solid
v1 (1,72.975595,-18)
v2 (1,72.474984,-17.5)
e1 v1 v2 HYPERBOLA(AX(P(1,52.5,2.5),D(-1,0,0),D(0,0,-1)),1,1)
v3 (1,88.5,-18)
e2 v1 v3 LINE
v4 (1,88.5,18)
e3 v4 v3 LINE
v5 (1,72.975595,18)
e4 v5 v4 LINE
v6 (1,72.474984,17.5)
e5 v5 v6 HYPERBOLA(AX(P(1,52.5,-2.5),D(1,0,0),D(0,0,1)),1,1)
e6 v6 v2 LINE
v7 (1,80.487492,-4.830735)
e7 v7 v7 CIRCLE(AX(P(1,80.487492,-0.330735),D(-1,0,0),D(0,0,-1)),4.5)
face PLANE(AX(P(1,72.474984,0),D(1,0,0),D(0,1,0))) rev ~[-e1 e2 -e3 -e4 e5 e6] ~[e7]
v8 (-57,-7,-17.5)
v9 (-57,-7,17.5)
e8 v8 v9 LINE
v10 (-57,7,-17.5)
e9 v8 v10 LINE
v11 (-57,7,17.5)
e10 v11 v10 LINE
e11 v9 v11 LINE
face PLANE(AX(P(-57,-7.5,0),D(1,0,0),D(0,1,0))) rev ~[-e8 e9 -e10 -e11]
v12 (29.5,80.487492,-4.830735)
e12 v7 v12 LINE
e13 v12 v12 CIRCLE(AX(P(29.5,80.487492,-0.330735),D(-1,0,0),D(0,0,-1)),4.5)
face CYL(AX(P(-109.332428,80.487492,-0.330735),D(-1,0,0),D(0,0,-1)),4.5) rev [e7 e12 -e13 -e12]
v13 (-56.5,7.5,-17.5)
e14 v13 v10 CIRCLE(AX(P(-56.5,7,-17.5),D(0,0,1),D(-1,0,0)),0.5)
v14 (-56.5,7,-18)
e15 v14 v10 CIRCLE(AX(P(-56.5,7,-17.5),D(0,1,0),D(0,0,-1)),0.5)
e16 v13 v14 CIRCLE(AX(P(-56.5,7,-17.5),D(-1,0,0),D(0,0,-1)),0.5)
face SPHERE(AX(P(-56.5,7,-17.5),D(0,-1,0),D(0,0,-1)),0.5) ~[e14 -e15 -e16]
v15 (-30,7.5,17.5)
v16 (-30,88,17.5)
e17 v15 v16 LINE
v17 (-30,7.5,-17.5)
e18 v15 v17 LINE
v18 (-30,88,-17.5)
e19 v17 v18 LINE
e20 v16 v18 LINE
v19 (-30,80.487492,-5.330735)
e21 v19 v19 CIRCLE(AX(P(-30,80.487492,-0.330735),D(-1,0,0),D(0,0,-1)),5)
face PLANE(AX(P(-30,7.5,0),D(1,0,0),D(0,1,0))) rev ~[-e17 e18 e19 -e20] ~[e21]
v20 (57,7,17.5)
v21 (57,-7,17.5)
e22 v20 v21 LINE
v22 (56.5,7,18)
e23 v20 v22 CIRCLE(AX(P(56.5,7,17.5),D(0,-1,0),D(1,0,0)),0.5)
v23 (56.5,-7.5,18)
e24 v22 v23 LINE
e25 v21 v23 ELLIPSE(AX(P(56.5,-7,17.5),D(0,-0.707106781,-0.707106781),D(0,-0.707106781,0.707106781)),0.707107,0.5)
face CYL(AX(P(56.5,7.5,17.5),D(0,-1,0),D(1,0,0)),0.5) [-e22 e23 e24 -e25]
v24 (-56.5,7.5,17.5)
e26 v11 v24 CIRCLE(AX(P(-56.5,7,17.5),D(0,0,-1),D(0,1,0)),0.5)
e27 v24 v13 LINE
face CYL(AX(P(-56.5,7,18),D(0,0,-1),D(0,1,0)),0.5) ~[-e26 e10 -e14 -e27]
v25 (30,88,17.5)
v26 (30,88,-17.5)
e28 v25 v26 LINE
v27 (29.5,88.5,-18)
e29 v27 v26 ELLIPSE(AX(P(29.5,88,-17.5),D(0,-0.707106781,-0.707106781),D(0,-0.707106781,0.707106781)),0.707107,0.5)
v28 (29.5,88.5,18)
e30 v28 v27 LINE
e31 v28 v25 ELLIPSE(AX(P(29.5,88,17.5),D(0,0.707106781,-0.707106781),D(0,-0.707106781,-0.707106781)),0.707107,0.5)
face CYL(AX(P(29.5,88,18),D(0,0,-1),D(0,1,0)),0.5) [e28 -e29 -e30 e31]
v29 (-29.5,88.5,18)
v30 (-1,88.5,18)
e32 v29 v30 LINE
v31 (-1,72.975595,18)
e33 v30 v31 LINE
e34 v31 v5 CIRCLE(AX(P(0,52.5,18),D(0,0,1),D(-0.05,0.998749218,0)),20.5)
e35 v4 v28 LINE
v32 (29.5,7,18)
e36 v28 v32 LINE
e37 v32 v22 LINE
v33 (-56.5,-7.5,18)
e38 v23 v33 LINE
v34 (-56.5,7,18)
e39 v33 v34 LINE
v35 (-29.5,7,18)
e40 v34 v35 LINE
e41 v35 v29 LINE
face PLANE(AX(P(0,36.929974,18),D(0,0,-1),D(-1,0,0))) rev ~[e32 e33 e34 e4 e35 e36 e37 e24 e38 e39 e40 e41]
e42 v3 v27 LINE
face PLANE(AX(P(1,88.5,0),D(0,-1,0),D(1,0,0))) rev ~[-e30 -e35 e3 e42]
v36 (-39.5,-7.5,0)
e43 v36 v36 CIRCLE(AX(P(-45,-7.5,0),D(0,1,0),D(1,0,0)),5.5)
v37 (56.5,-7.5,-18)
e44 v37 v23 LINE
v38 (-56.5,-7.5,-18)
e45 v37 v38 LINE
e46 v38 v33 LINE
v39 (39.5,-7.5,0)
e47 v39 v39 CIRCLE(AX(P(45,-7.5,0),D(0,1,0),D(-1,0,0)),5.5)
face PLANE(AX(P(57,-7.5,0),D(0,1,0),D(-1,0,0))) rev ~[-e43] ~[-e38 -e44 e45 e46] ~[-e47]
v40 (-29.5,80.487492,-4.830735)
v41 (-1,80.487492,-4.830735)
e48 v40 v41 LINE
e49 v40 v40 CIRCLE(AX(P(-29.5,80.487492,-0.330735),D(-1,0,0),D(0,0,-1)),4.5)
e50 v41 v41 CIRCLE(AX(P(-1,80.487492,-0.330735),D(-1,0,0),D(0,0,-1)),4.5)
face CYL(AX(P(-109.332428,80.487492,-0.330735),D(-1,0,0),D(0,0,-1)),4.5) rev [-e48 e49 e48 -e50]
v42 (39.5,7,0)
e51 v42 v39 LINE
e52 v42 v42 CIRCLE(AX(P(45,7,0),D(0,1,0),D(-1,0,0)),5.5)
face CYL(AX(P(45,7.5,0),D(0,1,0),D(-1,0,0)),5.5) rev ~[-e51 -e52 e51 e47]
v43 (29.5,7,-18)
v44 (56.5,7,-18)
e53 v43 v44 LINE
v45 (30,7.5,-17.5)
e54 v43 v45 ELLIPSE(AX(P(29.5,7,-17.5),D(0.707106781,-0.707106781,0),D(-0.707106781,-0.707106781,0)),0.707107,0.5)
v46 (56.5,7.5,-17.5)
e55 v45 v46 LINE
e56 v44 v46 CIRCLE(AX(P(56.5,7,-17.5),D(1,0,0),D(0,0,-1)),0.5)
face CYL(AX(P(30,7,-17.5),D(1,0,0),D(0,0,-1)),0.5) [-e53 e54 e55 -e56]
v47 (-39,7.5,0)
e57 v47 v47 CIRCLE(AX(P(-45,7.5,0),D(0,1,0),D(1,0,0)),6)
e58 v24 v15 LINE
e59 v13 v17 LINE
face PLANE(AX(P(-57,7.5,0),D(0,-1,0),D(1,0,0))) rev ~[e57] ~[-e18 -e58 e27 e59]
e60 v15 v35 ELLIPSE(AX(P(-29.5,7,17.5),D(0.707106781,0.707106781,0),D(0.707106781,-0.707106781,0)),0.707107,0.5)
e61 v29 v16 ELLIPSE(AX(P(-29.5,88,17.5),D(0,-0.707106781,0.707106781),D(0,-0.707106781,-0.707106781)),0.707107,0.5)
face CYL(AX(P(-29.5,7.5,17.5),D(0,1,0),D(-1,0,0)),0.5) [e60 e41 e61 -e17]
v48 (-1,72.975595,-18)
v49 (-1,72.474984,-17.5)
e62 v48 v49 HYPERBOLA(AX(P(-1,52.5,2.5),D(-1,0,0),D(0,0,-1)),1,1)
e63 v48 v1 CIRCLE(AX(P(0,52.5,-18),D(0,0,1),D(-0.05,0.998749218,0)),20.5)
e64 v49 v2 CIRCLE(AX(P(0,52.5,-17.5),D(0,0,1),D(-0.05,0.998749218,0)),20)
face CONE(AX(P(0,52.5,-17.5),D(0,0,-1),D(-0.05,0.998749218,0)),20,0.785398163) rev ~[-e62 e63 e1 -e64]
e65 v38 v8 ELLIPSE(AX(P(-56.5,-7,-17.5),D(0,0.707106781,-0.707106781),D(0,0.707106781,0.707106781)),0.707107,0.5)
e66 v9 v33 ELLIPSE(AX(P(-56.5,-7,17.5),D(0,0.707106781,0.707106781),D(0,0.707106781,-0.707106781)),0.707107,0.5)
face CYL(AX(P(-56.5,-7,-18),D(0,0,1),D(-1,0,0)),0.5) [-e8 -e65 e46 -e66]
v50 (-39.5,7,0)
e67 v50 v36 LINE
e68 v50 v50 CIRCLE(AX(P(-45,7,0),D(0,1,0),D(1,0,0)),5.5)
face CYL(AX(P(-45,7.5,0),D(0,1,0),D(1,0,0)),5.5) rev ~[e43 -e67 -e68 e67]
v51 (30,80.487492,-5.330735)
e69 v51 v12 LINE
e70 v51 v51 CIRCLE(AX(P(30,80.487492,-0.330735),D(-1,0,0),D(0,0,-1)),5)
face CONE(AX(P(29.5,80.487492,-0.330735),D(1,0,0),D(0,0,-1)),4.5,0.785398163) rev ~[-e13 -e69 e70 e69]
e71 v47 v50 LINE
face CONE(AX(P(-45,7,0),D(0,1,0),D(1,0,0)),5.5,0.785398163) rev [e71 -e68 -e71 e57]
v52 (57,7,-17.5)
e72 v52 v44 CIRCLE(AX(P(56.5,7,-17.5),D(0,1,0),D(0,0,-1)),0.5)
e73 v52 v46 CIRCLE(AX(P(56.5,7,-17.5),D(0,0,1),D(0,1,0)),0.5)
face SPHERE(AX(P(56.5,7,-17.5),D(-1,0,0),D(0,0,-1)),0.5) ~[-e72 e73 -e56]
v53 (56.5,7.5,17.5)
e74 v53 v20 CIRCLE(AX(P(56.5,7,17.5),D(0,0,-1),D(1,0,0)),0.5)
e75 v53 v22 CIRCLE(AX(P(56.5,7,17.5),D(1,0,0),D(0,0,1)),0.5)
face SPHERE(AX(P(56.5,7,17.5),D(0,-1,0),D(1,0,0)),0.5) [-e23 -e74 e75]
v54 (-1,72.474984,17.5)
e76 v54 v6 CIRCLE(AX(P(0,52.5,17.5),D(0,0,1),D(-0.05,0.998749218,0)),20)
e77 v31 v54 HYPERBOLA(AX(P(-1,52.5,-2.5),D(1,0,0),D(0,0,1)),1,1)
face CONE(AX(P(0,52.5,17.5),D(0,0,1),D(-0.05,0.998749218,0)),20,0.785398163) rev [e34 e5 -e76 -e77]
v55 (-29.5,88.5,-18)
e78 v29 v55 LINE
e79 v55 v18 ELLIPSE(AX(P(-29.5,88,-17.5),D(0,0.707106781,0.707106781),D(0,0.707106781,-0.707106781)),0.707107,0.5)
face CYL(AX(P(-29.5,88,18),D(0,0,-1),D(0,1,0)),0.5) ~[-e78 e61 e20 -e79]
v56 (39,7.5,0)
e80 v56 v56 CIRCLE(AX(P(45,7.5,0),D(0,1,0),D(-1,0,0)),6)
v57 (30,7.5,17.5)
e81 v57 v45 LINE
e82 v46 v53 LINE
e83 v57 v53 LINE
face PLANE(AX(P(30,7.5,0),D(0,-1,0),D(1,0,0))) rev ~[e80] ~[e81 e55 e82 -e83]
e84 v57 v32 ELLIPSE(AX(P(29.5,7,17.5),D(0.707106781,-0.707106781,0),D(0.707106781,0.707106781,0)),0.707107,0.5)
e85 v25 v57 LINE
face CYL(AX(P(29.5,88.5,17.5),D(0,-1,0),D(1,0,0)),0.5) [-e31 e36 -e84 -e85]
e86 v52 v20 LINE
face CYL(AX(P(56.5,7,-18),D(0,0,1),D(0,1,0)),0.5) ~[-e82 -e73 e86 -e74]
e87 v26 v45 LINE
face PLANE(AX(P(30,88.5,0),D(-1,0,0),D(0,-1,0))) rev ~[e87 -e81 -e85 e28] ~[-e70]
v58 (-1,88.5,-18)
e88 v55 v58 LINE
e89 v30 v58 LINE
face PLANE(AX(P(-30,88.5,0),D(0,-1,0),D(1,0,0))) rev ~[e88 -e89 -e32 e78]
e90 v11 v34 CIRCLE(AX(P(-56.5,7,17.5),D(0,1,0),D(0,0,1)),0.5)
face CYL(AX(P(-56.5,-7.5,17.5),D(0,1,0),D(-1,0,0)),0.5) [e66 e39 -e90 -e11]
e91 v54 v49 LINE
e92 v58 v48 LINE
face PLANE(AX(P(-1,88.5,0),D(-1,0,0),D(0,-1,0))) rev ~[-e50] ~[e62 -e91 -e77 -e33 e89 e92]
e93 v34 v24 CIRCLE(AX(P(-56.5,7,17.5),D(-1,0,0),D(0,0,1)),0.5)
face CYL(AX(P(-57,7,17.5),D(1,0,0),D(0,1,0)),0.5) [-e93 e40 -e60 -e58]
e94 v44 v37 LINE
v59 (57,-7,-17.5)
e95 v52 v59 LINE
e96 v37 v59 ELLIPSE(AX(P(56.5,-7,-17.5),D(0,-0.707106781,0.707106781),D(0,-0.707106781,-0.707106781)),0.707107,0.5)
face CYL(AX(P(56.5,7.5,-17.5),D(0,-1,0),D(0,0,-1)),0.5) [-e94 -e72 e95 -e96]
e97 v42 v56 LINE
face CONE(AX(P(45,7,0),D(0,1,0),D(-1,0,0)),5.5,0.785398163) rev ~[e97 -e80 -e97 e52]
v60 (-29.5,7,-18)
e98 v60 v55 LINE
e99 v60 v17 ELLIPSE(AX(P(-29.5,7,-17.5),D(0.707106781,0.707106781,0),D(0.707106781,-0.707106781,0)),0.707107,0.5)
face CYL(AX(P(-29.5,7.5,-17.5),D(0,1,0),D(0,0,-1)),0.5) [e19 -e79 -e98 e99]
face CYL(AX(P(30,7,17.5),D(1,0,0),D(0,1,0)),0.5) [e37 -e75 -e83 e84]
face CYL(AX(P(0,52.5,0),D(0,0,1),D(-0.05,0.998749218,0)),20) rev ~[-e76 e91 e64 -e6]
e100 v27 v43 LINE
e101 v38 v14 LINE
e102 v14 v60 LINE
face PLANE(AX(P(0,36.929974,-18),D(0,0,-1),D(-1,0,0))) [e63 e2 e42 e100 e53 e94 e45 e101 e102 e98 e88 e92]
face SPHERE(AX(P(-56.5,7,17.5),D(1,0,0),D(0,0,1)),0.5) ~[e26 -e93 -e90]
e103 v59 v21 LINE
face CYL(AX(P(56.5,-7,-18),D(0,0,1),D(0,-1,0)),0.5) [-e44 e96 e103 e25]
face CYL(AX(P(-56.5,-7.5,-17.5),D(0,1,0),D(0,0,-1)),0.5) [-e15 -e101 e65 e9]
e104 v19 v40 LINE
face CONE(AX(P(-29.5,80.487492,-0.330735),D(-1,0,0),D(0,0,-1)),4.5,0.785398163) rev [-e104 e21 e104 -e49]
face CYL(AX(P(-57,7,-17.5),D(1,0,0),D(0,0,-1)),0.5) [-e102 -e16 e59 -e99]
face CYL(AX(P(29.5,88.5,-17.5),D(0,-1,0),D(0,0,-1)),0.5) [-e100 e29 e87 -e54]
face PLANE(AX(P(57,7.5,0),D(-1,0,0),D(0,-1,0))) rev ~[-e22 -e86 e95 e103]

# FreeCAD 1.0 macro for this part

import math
import FreeCAD as App
import Part
import Sketcher

V = App.Vector


def edges_at(feature, points):
    """Names of the edges that pass closest to the given points."""
    edges = feature.Shape.Edges
    near = lambda p: min(range(len(edges)), key=lambda i: edges[i].distToShape(Part.Vertex(*p))[0])
    return sorted({f"Edge{near(p) + 1}" for p in points})

doc = App.newDocument("Part")
body = doc.addObject("PartDesign::Body", "Body")

sketch1 = body.newObject("Sketcher::SketchObject", "Sketch")
sketch1.AttachmentSupport = (doc.getObject("XY_Plane"), [""])
sketch1.MapMode = "FlatFace"
sketch1.addGeometry([
    Part.LineSegment(V(-57, 7.5, 0), V(-57, -7.5, 0)),
    Part.LineSegment(V(-57, -7.5, 0), V(57, -7.5, 0)),
    Part.LineSegment(V(57, -7.5, 0), V(57, 7.5, 0)),
    Part.LineSegment(V(57, 7.5, 0), V(30, 7.5, 0)),
    Part.LineSegment(V(30, 7.5, 0), V(30, 88.5, 0)),
    Part.LineSegment(V(30, 88.5, 0), V(1, 88.5, 0)),
    Part.LineSegment(V(1, 88.5, 0), V(1, 72.5, 0)),
    Part.ArcOfCircle(Part.Circle(V(0, 52.5, 0), V(0, 0, 1), 20), math.radians(93), math.radians(447)),
    Part.LineSegment(V(-1, 72.5, 0), V(-1, 88.5, 0)),
    Part.LineSegment(V(-1, 88.5, 0), V(-30, 88.5, 0)),
    Part.LineSegment(V(-30, 88.5, 0), V(-30, 7.5, 0)),
    Part.LineSegment(V(-30, 7.5, 0), V(-57, 7.5, 0)),
], False)
sketch1.addConstraint([
    Sketcher.Constraint("Coincident", 0, 2, 1, 1),
    Sketcher.Constraint("Coincident", 1, 2, 2, 1),
    Sketcher.Constraint("Coincident", 2, 2, 3, 1),
    Sketcher.Constraint("Coincident", 3, 2, 4, 1),
    Sketcher.Constraint("Coincident", 4, 2, 5, 1),
    Sketcher.Constraint("Coincident", 5, 2, 6, 1),
    Sketcher.Constraint("Coincident", 6, 2, 7, 2),
    Sketcher.Constraint("Coincident", 7, 1, 8, 1),
    Sketcher.Constraint("Coincident", 8, 2, 9, 1),
    Sketcher.Constraint("Coincident", 9, 2, 10, 1),
    Sketcher.Constraint("Coincident", 10, 2, 11, 1),
    Sketcher.Constraint("Coincident", 11, 2, 0, 1),
    Sketcher.Constraint("Vertical", 0),
    Sketcher.Constraint("Horizontal", 1),
    Sketcher.Constraint("Vertical", 2),
    Sketcher.Constraint("Horizontal", 3),
    Sketcher.Constraint("Vertical", 4),
    Sketcher.Constraint("Horizontal", 5),
    Sketcher.Constraint("Vertical", 6),
    Sketcher.Constraint("Vertical", 8),
    Sketcher.Constraint("Horizontal", 9),
    Sketcher.Constraint("Vertical", 10),
    Sketcher.Constraint("Horizontal", 11),
    Sketcher.Constraint("Symmetric", 0, 2, 2, 2, -1, 1),
    Sketcher.Constraint("Symmetric", 6, 2, 7, 1, -2),
    Sketcher.Constraint("Symmetric", 4, 2, 9, 2, -2),
    Sketcher.Constraint("Horizontal", 3, 2, 10, 2),
    Sketcher.Constraint("Radius", 7, 20.0),
    Sketcher.Constraint("DistanceX", 1, 1, 1, 2, 114.0),
    Sketcher.Constraint("DistanceX", 3, 2, 3, 1, 27.0),
    Sketcher.Constraint("DistanceX", 5, 2, 5, 1, 29.0),
    Sketcher.Constraint("DistanceY", 0, 2, 0, 1, 15.0),
    Sketcher.Constraint("DistanceY", 4, 1, 4, 2, 81.0),
    Sketcher.Constraint("DistanceY", 0, 2, 7, 3, 60.0),
])
pad1 = body.newObject("PartDesign::Pad", "Pad")
pad1.Profile = sketch1
pad1.Length = 36
pad1.Midplane = True

sketch2 = body.newObject("Sketcher::SketchObject", "Sketch001")
sketch2.AttachmentSupport = (doc.getObject("XZ_Plane"), [""])
sketch2.MapMode = "FlatFace"
sketch2.AttachmentOffset = App.Placement(V(0, 0, -7.5), App.Rotation())
sketch2.addGeometry([
    Part.Circle(V(45, 0, 0), V(0, 0, 1), 6),
    Part.Circle(V(-45, 0, 0), V(0, 0, 1), 6),
], False)
sketch2.addConstraint([
    Sketcher.Constraint("Equal", 0, 1),
    Sketcher.Constraint("Symmetric", 0, 3, 1, 3, -1, 1),
    Sketcher.Constraint("PointOnObject", 0, 3, -1),
    Sketcher.Constraint("Diameter", 0, 11.0),
    Sketcher.Constraint("DistanceX", -1, 1, 0, 3, 45.0),
])
pocket1 = body.newObject("PartDesign::Pocket", "Pocket")
pocket1.Profile = sketch2
pocket1.Type = "ThroughAll"
pocket1.Reversed = True

sketch3 = body.newObject("Sketcher::SketchObject", "Sketch002")
sketch3.AttachmentSupport = (doc.getObject("YZ_Plane"), [""])
sketch3.MapMode = "FlatFace"
sketch3.AttachmentOffset = App.Placement(V(0, 0, -1), App.Rotation())
sketch3.addGeometry(Part.Circle(V(80.5, -0.3, 0), V(0, 0, 1), 4.5), False)
sketch3.addConstraint([
    Sketcher.Constraint("Diameter", 0, 9.0),
    Sketcher.Constraint("DistanceX", -1, 1, 0, 3, 80.487492),
    Sketcher.Constraint("DistanceY", 0, 3, -1, 1, 0.330735),
])
pocket2 = body.newObject("PartDesign::Pocket", "Pocket001")
pocket2.Profile = sketch3
pocket2.Type = "ThroughAll"
pocket2.Midplane = True
doc.recompute()

chamfer = body.newObject("PartDesign::Chamfer", "Chamfer")
chamfer.Base = (pocket2, edges_at(pocket2, [
    (0, 32.5, -18),
    (0, 32.5, 18),
    (50.5, 7.5, 0),
    (-50.5, 7.5, 0),
    (-30, 80.487, 4.169),
    (30, 80.487, 4.169),
]))
chamfer.Size = 0.5
doc.recompute()

fillet = body.newObject("PartDesign::Fillet", "Fillet")
fillet.Base = (chamfer, edges_at(chamfer, [
    (-43.5, 7.5, 18),
    (30, 48, -18),
    (43.5, 7.5, -18),
    (-57, 0, 18),
    (57, 0, -18),
    (-57, 0, -18),
    (-43.5, 7.5, -18),
    (-30, 48, -18),
    (57, 0, 18),
    (30, 88.5, 0),
    (57, 7.5, 0),
    (57, -7.5, 0),
    (-57, -7.5, 0),
    (-57, 7.5, 0),
    (-30, 88.5, 0),
    (43.5, 7.5, 18),
    (30, 48, 18),
    (-30, 48, 18),
]))
fillet.Radius = 0.5

doc.recompute()
